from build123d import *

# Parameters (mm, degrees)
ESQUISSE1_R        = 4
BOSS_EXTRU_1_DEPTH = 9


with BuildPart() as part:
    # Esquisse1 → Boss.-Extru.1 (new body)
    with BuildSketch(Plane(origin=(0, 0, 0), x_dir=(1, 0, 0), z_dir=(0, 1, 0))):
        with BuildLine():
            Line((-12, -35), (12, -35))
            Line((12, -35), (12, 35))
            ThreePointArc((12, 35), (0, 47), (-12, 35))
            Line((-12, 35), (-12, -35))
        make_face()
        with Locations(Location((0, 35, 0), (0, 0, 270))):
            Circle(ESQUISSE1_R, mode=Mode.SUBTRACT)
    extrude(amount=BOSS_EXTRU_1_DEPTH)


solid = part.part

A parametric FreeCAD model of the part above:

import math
import FreeCAD as App
import Part
import Sketcher

V = App.Vector
Q = App.Units.Quantity

doc = App.newDocument("Part")
body = doc.addObject("PartDesign::Body", "Body")

# Sketch on XZ plane
sketch1 = doc.addObject("Sketcher::SketchObject", "Sketch")
body.addObject(sketch1)
sketch1.AttachmentSupport = (doc.XZ_Plane, [""])
sketch1.MapMode = "FlatFace"
sketch1.addGeometry([
    Part.LineSegment(V(-12, 35, 0), V(12, 35, 0)),  # 0
    Part.LineSegment(V(12, 35, 0), V(12, -35, 0)),  # 1
    Part.ArcOfCircle(Part.Circle(V(0, -35, 0), V(0, 0, 1), 12), math.radians(180), math.radians(360)),  # 2
    Part.LineSegment(V(-12, -35, 0), V(-12, 35, 0)),  # 3
    Part.Circle(V(0, -35, 0), V(0, 0, 1), 4),  # 4
], False)
sketch1.addConstraint([
    Sketcher.Constraint("Coincident", 0, 2, 1, 1),
    Sketcher.Constraint("Tangent", 1, 2, 2, 2),
    Sketcher.Constraint("Tangent", 2, 1, 3, 1),
    Sketcher.Constraint("Coincident", 3, 2, 0, 1),
    Sketcher.Constraint("Horizontal", 0),
    Sketcher.Constraint("Vertical", 1),
    Sketcher.Constraint("Vertical", 3),
    Sketcher.Constraint("Coincident", 4, 3, 2, 3),
    Sketcher.Constraint("Symmetric", 0, 2, 2, 1, -1, 1),
    Sketcher.Constraint("Diameter", 4, Q("8 mm")),
    Sketcher.Constraint("Radius", 2, Q("12 mm")),
    Sketcher.Constraint("DistanceY", 1, 2, 1, 1, Q("70 mm")),
])
pad1 = doc.addObject("PartDesign::Pad", "Pad")
body.addObject(pad1)
pad1.Profile = sketch1
pad1.Length = 9
pad1.Reversed = True

doc.recompute()
